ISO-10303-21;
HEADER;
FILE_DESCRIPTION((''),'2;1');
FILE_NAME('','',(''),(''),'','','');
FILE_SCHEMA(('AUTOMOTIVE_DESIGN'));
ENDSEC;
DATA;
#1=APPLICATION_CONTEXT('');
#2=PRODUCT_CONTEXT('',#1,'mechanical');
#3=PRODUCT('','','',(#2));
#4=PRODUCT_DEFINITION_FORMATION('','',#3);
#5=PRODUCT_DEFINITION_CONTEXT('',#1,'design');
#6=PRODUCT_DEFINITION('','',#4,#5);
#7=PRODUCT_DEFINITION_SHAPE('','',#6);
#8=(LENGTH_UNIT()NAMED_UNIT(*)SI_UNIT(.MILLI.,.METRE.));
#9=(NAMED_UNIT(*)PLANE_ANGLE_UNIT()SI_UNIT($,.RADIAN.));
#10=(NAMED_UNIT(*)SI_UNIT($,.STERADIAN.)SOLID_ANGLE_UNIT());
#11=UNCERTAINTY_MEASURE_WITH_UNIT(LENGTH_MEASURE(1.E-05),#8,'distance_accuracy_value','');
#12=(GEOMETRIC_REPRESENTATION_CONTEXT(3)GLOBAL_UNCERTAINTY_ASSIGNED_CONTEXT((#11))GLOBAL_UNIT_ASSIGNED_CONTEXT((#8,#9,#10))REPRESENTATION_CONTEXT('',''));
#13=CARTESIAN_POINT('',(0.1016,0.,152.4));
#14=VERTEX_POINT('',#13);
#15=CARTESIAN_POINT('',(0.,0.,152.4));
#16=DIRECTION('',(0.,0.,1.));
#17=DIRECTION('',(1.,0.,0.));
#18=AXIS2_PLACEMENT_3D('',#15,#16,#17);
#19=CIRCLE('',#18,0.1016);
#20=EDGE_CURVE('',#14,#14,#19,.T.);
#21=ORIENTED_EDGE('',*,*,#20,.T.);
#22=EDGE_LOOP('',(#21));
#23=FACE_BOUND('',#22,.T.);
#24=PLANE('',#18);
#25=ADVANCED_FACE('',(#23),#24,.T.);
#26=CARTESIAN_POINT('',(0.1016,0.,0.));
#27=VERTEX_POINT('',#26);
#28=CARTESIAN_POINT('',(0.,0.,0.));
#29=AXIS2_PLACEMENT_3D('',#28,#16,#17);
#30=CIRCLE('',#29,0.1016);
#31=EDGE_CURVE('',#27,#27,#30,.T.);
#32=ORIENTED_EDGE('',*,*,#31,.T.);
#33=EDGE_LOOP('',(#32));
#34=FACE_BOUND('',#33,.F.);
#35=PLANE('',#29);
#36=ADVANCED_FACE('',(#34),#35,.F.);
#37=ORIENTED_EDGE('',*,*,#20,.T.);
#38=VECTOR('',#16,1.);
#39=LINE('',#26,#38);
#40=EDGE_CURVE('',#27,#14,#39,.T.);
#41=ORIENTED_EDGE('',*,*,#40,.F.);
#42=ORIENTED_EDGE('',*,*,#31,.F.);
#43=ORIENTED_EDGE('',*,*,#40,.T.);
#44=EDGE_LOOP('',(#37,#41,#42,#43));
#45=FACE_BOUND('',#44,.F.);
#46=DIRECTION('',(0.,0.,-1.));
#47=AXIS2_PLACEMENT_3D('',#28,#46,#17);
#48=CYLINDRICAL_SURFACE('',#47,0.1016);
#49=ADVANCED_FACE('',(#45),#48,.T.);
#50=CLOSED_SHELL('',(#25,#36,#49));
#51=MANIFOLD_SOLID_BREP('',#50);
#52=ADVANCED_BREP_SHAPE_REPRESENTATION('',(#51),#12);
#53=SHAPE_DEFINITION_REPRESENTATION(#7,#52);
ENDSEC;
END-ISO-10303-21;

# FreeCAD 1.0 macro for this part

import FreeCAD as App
import Part
import Sketcher

V = App.Vector
Q = App.Units.Quantity

doc = App.newDocument("Part")
params = doc.addObject("Spreadsheet::Sheet", "Params")
for row, (alias, value) in enumerate([
    ("sketch1_diameter", "0.008 in"),
    ("pad1_length", "6 in"),
], start=1):
    params.set(f"A{row}", alias)
    params.set(f"B{row}", "=" + value)
    params.setAlias(f"B{row}", alias)

body = doc.addObject("PartDesign::Body", "Body")

# Sketch on XY plane
sketch1 = body.newObject("Sketcher::SketchObject", "Sketch")
sketch1.AttachmentSupport = (doc.getObject("XY_Plane"), [""])
sketch1.MapMode = "FlatFace"
sketch1.addGeometry(Part.Circle(V(0, 0, 0), V(0, 0, 1), 0.1016), False)
sketch1.addConstraint([
    Sketcher.Constraint("Coincident", 0, 3, -1, 1),
    Sketcher.Constraint("Diameter", 0, Q("0.008 in")),
])
sketch1.setExpression("Constraints[1]", "Params.sketch1_diameter")
pad1 = body.newObject("PartDesign::Pad", "Pad")
pad1.Profile = sketch1
pad1.setExpression("Length", "Params.pad1_length")

doc.recompute()
